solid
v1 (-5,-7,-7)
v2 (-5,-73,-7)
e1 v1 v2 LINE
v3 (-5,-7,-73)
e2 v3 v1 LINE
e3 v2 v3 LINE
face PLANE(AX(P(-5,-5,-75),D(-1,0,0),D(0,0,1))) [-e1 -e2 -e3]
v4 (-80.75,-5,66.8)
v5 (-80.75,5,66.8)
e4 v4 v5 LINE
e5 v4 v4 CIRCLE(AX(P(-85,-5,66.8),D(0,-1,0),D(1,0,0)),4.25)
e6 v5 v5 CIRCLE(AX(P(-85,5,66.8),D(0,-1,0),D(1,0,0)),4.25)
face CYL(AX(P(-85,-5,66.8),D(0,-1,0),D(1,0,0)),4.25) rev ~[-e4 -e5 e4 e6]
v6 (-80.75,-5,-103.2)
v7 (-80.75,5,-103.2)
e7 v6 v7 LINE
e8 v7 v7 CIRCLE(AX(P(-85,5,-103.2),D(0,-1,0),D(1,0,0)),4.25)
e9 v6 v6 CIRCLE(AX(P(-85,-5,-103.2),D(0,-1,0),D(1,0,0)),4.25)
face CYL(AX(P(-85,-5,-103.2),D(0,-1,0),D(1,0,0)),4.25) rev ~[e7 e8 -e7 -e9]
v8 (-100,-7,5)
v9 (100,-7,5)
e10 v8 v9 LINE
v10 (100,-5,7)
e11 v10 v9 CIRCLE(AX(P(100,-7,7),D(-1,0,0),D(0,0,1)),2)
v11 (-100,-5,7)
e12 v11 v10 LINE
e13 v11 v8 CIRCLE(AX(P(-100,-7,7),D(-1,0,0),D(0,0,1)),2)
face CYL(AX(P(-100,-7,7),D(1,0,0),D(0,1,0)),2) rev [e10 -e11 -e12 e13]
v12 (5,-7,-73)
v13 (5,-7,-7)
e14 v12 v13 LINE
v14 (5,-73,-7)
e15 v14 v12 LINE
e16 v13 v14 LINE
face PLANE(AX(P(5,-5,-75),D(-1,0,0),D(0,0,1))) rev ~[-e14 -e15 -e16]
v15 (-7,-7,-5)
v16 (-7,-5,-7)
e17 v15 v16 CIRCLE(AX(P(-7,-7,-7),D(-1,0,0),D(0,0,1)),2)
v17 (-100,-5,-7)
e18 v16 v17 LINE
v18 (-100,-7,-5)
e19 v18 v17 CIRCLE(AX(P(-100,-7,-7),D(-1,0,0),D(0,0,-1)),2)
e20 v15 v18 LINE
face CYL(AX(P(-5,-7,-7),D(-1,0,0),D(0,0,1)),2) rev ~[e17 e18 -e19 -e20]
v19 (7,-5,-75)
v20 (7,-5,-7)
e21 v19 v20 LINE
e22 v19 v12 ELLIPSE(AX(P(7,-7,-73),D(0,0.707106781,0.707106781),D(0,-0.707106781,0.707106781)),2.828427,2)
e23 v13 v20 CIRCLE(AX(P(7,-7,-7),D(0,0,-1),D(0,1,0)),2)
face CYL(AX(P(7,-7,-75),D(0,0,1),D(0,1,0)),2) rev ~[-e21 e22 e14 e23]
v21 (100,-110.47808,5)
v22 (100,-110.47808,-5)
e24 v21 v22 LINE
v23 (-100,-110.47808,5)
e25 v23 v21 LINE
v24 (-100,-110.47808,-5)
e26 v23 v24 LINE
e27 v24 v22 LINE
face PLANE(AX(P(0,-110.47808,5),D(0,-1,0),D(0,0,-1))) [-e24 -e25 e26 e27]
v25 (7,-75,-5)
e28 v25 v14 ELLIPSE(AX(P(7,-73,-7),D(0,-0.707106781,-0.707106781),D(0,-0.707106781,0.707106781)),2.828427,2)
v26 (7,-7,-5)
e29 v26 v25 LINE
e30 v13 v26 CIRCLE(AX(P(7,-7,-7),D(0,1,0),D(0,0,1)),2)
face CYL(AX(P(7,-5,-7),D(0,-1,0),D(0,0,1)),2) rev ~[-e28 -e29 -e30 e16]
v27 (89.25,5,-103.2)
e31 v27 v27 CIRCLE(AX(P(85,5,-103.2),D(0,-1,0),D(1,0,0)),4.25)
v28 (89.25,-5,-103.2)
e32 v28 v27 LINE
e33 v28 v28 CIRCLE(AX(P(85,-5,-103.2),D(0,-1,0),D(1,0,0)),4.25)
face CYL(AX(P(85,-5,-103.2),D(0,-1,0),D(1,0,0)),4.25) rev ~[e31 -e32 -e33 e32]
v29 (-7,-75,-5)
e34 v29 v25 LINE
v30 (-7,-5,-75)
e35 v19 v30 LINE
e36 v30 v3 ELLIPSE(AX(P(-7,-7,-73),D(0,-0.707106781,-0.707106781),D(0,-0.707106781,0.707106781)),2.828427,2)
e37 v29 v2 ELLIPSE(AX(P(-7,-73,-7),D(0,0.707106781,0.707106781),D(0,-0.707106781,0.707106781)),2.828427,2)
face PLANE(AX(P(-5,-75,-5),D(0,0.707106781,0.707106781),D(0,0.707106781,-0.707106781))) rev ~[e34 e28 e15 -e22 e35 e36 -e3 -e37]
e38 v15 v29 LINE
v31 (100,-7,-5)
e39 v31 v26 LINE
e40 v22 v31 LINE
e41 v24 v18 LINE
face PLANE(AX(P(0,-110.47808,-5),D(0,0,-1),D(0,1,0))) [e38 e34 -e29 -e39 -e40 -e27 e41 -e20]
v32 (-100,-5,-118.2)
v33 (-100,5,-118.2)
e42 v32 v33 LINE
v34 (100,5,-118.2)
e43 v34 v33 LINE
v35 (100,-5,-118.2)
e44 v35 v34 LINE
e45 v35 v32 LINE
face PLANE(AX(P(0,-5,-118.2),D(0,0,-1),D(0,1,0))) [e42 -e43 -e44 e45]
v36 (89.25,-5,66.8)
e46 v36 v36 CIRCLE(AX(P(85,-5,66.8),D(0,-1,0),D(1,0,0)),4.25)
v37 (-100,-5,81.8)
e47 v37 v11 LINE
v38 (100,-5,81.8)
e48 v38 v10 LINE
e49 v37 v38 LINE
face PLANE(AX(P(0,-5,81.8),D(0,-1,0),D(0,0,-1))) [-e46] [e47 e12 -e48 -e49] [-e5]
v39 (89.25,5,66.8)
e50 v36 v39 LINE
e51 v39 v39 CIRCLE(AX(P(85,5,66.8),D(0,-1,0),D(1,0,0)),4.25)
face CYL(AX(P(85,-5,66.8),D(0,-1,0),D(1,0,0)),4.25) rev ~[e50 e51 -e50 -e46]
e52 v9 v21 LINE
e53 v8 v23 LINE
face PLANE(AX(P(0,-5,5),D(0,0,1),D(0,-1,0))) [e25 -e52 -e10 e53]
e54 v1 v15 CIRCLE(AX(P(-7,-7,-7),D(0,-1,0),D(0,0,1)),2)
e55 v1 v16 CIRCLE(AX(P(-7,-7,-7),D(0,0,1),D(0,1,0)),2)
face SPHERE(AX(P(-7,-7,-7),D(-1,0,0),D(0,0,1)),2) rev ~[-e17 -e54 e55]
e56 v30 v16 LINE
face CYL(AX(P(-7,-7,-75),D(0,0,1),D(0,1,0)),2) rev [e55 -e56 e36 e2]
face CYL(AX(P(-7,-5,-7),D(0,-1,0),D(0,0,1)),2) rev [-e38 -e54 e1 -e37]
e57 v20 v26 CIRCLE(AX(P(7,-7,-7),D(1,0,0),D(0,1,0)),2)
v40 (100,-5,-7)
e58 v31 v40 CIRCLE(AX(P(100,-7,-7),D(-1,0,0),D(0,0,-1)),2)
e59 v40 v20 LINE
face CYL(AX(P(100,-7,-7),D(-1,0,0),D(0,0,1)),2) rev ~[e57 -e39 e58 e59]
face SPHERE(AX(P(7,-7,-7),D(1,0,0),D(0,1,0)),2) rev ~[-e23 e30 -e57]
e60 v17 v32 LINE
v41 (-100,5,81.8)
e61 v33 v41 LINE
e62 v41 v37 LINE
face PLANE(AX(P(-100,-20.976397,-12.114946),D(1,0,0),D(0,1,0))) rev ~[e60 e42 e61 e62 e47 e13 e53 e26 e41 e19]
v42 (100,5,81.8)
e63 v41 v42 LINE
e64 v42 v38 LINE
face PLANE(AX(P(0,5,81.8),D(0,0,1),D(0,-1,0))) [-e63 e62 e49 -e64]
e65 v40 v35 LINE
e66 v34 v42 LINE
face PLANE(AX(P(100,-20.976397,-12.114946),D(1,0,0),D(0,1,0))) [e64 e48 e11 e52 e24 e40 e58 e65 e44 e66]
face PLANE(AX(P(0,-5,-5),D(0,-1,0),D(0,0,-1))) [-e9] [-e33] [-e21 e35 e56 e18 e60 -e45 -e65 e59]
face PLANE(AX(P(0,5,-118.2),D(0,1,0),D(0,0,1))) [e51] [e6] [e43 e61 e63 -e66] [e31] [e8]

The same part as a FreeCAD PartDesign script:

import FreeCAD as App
import Part
import Sketcher
from FreeCAD import Vector


def edges_at(feature, points):
    """Names of the edges that pass closest to the given points."""
    edges = feature.Shape.Edges
    near = lambda p: min(range(len(edges)), key=lambda i: edges[i].distToShape(Part.Vertex(*p))[0])
    return sorted({f"Edge{near(p) + 1}" for p in points})


def add_polygon(sketch, points):
    """Adds a closed chain of lines whose ends are joined by coincident constraints."""
    first, n = sketch.GeometryCount, len(points)
    for a, b in zip(points, points[1:] + points[:1]):
        sketch.addGeometry(Part.LineSegment(App.Vector(*a, 0), App.Vector(*b, 0)), False)
    for i in range(n):
        sketch.addConstraint(Sketcher.Constraint("Coincident", first + i, 2, first + (i + 1) % n, 1))

doc = App.newDocument("Part")
body = doc.addObject("PartDesign::Body", "Body")

# Sketch on YZ plane
sketch1 = doc.addObject("Sketcher::SketchObject", "Sketch")
body.addObject(sketch1)
sketch1.AttachmentSupport = (doc.YZ_Plane, [""])
sketch1.MapMode = "FlatFace"
add_polygon(sketch1, [(5, -118), (5, 82), (-5, 82), (-5, 5), (-110, 5), (-110, -5), (-5, -5), (-5, -118)])  # lines 0-7
sketch1.addConstraint(Sketcher.Constraint("Vertical", 0))
sketch1.addConstraint(Sketcher.Constraint("Horizontal", 1))
sketch1.addConstraint(Sketcher.Constraint("Vertical", 2))
sketch1.addConstraint(Sketcher.Constraint("Horizontal", 3))
sketch1.addConstraint(Sketcher.Constraint("Vertical", 4))
sketch1.addConstraint(Sketcher.Constraint("Horizontal", 5))
sketch1.addConstraint(Sketcher.Constraint("Vertical", 6))
sketch1.addConstraint(Sketcher.Constraint("Horizontal", 7))
sketch1.addConstraint(Sketcher.Constraint("Symmetric", 2, 2, 5, 2, -1))
sketch1.addConstraint(Sketcher.Constraint("Equal", 7, 4))
sketch1.addConstraint(Sketcher.Constraint("DistanceX", 1, 2, 1, 1, 10.0))
sketch1.addConstraint(Sketcher.Constraint("DistanceY", 0, 1, 0, 2, 200.0))
sketch1.addConstraint(Sketcher.Constraint("DistanceY", 2, 2, 2, 1, 76.8))
sketch1.addConstraint(Sketcher.Constraint("DistanceX", -1, 1, 0, 2, 5.0))
sketch1.addConstraint(Sketcher.Constraint("DistanceX", 3, 2, 3, 1, 105.47808))
pad1 = doc.addObject("PartDesign::Pad", "Pad")
body.addObject(pad1)
pad1.Profile = sketch1
pad1.Length = 200
pad1.Midplane = True

# Sketch on XZ plane
sketch2 = doc.addObject("Sketcher::SketchObject", "Sketch001")
body.addObject(sketch2)
sketch2.AttachmentSupport = (doc.XZ_Plane, [""])
sketch2.MapMode = "FlatFace"
sketch2.AttachmentOffset = App.Placement(Vector(0, 0, 5), App.Rotation())
add_polygon(sketch2, [(-5, -5), (-5, -75), (5, -75), (5, -5)])  # lines 0-3
sketch2.addConstraint(Sketcher.Constraint("Vertical", 0))
sketch2.addConstraint(Sketcher.Constraint("Horizontal", 1))
sketch2.addConstraint(Sketcher.Constraint("Vertical", 2))
sketch2.addConstraint(Sketcher.Constraint("Horizontal", 3))
sketch2.addConstraint(Sketcher.Constraint("DistanceX", 1, 1, 1, 2, 10.0))
sketch2.addConstraint(Sketcher.Constraint("DistanceY", 0, 2, 0, 1, 70.0))
sketch2.addConstraint(Sketcher.Constraint("DistanceX", 0, 2, -1, 1, 5.0))
sketch2.addConstraint(Sketcher.Constraint("DistanceY", 0, 2, -1, 1, 75.0))
pad2 = doc.addObject("PartDesign::Pad", "Pad001")
body.addObject(pad2)
pad2.Profile = sketch2
pad2.Length = 70

# Sketch on YZ plane
sketch3 = doc.addObject("Sketcher::SketchObject", "Sketch002")
body.addObject(sketch3)
sketch3.AttachmentSupport = (doc.YZ_Plane, [""])
sketch3.MapMode = "FlatFace"
sketch3.AttachmentOffset = App.Placement(Vector(0, 0, -5), App.Rotation())
add_polygon(sketch3, [(-75, -75), (-75, -5), (-5, -75)])  # lines 0-2
sketch3.addConstraint(Sketcher.Constraint("Vertical", 0))
sketch3.addConstraint(Sketcher.Constraint("Horizontal", 2))
sketch3.addConstraint(Sketcher.Constraint("Equal", 2, 0))
sketch3.addConstraint(Sketcher.Constraint("DistanceX", 2, 2, 2, 1, 70.0))
sketch3.addConstraint(Sketcher.Constraint("DistanceX", 0, 2, -1, 1, 75.0))
sketch3.addConstraint(Sketcher.Constraint("DistanceY", 0, 2, -1, 1, 5.0))
pocket1 = doc.addObject("PartDesign::Pocket", "Pocket")
body.addObject(pocket1)
pocket1.Profile = sketch3
pocket1.Length = 10
pocket1.Reversed = True

# Sketch on XZ plane
sketch4 = doc.addObject("Sketcher::SketchObject", "Sketch003")
body.addObject(sketch4)
sketch4.AttachmentSupport = (doc.XZ_Plane, [""])
sketch4.MapMode = "FlatFace"
sketch4.AttachmentOffset = App.Placement(Vector(0, 0, 5), App.Rotation())
sketch4.addGeometry(Part.Circle(Vector(85, -103.2, 0), Vector(0, 0, 1), 4.2), False)
sketch4.addGeometry(Part.Circle(Vector(-85, -103.2, 0), Vector(0, 0, 1), 4.2), False)
sketch4.addConstraint(Sketcher.Constraint("Equal", 0, 1))
sketch4.addConstraint(Sketcher.Constraint("Symmetric", 0, 3, 1, 3, -2))
sketch4.addConstraint(Sketcher.Constraint("Diameter", 0, 8.5))
sketch4.addConstraint(Sketcher.Constraint("DistanceX", -1, 1, 0, 3, 85.0))
sketch4.addConstraint(Sketcher.Constraint("DistanceY", 0, 3, -1, 1, 103.2))
pocket2 = doc.addObject("PartDesign::Pocket", "Pocket001")
body.addObject(pocket2)
pocket2.Profile = sketch4
pocket2.Length = 10

# Sketch on XZ plane
sketch5 = doc.addObject("Sketcher::SketchObject", "Sketch004")
body.addObject(sketch5)
sketch5.AttachmentSupport = (doc.XZ_Plane, [""])
sketch5.MapMode = "FlatFace"
sketch5.AttachmentOffset = App.Placement(Vector(0, 0, 5), App.Rotation())
sketch5.addGeometry(Part.Circle(Vector(-85, 66.8, 0), Vector(0, 0, 1), 4.2), False)
sketch5.addGeometry(Part.Circle(Vector(85, 66.8, 0), Vector(0, 0, 1), 4.2), False)
sketch5.addConstraint(Sketcher.Constraint("Equal", 0, 1))
sketch5.addConstraint(Sketcher.Constraint("Symmetric", 0, 3, 1, 3, -2))
sketch5.addConstraint(Sketcher.Constraint("Diameter", 0, 8.5))
sketch5.addConstraint(Sketcher.Constraint("DistanceX", 0, 3, -1, 1, 85.0))
sketch5.addConstraint(Sketcher.Constraint("DistanceY", -1, 1, 0, 3, 66.8))
pocket3 = doc.addObject("PartDesign::Pocket", "Pocket002")
body.addObject(pocket3)
pocket3.Profile = sketch5
pocket3.Length = 10
doc.recompute()

fillet = doc.addObject("PartDesign::Fillet", "Fillet")
body.addObject(fillet)
fillet.Base = (pocket3, edges_at(pocket3, [
    (-52.5, -5, -5),
    (52.5, -5, -5),
    (-5, -40, -5),
    (-5, -5, -40),
    (5, -5, -40),
    (5, -40, -5),
    (0, -5, 5),
]))
fillet.Radius = 2

doc.recompute()
